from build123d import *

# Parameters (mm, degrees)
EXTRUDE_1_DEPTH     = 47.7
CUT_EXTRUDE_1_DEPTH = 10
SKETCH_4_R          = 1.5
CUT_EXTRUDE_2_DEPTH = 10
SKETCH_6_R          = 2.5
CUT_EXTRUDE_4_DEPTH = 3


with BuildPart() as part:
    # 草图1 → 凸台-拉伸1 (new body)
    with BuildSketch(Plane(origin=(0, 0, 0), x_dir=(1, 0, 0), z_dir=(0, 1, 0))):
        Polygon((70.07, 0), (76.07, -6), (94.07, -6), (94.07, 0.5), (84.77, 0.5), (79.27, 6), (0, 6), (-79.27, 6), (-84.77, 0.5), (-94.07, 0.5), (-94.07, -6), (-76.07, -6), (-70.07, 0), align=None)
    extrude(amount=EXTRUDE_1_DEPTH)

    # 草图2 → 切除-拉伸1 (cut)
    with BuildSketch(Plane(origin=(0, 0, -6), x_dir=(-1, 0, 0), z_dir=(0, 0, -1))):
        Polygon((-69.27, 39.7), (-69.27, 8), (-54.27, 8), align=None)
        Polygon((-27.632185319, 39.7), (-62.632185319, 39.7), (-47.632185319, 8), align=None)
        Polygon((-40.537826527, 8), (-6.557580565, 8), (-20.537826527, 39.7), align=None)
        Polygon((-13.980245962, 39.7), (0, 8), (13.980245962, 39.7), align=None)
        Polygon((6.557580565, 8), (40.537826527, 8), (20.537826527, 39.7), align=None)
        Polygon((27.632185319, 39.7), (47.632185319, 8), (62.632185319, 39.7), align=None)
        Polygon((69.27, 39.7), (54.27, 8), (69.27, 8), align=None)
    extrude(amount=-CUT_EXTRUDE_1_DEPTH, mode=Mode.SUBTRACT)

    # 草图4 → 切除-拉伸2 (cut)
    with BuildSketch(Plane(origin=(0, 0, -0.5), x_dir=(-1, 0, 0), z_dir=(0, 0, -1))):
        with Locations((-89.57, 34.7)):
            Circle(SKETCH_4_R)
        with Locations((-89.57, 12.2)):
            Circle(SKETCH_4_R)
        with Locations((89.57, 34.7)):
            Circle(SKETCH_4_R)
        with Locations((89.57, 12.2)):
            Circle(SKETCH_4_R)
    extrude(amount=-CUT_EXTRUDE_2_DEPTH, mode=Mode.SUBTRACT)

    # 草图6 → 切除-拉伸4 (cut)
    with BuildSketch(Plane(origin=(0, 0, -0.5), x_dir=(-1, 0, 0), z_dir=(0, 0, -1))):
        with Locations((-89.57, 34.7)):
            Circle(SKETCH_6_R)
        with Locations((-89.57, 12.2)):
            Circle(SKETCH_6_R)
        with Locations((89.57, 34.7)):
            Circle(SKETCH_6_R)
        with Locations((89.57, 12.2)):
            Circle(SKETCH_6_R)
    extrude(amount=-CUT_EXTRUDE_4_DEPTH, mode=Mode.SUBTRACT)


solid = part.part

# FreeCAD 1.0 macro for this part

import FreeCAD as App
import Part
import Sketcher

doc = App.newDocument("Part")
params = doc.addObject("Spreadsheet::Sheet", "Params")
for row, (alias, value) in enumerate([
    ("sketch1_width", "18 mm"),
    ("sketch1_width2", "9.3 mm"),
    ("sketch1_height", "6.5 mm"),
    ("sketch1_width3", "158.54 mm"),
    ("pad1_length", "47.7 mm"),
    ("sketch2_width", "15 mm"),
    ("sketch2_width2", "35 mm"),
    ("sketch2_height", "31.7 mm"),
    ("pocket1_length", "10 mm"),
    ("sketch3_diameter", "3 mm"),
    ("pocket2_length", "10 mm"),
    ("sketch4_diameter", "5 mm"),
    ("pocket3_length", "3 mm"),
], start=1):
    params.set(f"A{row}", alias)
    params.set(f"B{row}", "=" + value)
    params.setAlias(f"B{row}", alias)

body = doc.addObject("PartDesign::Body", "Body")

sketch1 = body.newObject("Sketcher::SketchObject", "Sketch")
sketch1.AttachmentSupport = (doc.getObject("XZ_Plane"), [""])
sketch1.MapMode = "FlatFace"
sketch1.addGeometry(Part.LineSegment(App.Vector(70, 0, 0), App.Vector(76, 6, 0)), False)
sketch1.addGeometry(Part.LineSegment(App.Vector(76, 6, 0), App.Vector(94, 6, 0)), False)
sketch1.addGeometry(Part.LineSegment(App.Vector(94, 6, 0), App.Vector(94, 0, 0)), False)
sketch1.addGeometry(Part.LineSegment(App.Vector(94, 0, 0), App.Vector(85, 0, 0)), False)
sketch1.addGeometry(Part.LineSegment(App.Vector(85, 0, 0), App.Vector(79, -6, 0)), False)
sketch1.addGeometry(Part.LineSegment(App.Vector(79, -6, 0), App.Vector(-79, -6, 0)), False)
sketch1.addGeometry(Part.LineSegment(App.Vector(-79, -6, 0), App.Vector(-85, 0, 0)), False)
sketch1.addGeometry(Part.LineSegment(App.Vector(-85, 0, 0), App.Vector(-94, 0, 0)), False)
sketch1.addGeometry(Part.LineSegment(App.Vector(-94, 0, 0), App.Vector(-94, 6, 0)), False)
sketch1.addGeometry(Part.LineSegment(App.Vector(-94, 6, 0), App.Vector(-76, 6, 0)), False)
sketch1.addGeometry(Part.LineSegment(App.Vector(-76, 6, 0), App.Vector(-70, 0, 0)), False)
sketch1.addGeometry(Part.LineSegment(App.Vector(-70, 0, 0), App.Vector(70, 0, 0)), False)
sketch1.addConstraint(Sketcher.Constraint("Coincident", 0, 2, 1, 1))
sketch1.addConstraint(Sketcher.Constraint("Coincident", 1, 2, 2, 1))
sketch1.addConstraint(Sketcher.Constraint("Coincident", 2, 2, 3, 1))
sketch1.addConstraint(Sketcher.Constraint("Coincident", 3, 2, 4, 1))
sketch1.addConstraint(Sketcher.Constraint("Coincident", 4, 2, 5, 1))
sketch1.addConstraint(Sketcher.Constraint("Coincident", 5, 2, 6, 1))
sketch1.addConstraint(Sketcher.Constraint("Coincident", 6, 2, 7, 1))
sketch1.addConstraint(Sketcher.Constraint("Coincident", 7, 2, 8, 1))
sketch1.addConstraint(Sketcher.Constraint("Coincident", 8, 2, 9, 1))
sketch1.addConstraint(Sketcher.Constraint("Coincident", 9, 2, 10, 1))
sketch1.addConstraint(Sketcher.Constraint("Coincident", 10, 2, 11, 1))
sketch1.addConstraint(Sketcher.Constraint("Coincident", 11, 2, 0, 1))
sketch1.addConstraint(Sketcher.Constraint("Horizontal", 1))
sketch1.addConstraint(Sketcher.Constraint("Vertical", 2))
sketch1.addConstraint(Sketcher.Constraint("Horizontal", 3))
sketch1.addConstraint(Sketcher.Constraint("Horizontal", 5))
sketch1.addConstraint(Sketcher.Constraint("Horizontal", 7))
sketch1.addConstraint(Sketcher.Constraint("Vertical", 8))
sketch1.addConstraint(Sketcher.Constraint("Horizontal", 9))
sketch1.addConstraint(Sketcher.Constraint("Horizontal", 11))
sketch1.addConstraint(Sketcher.Constraint("Symmetric", 10, 2, 11, 2, -1, 1))
sketch1.addConstraint(Sketcher.Constraint("Symmetric", 3, 2, 6, 2, -2))
sketch1.addConstraint(Sketcher.Constraint("Symmetric", 1, 2, 8, 2, -2))
sketch1.addConstraint(Sketcher.Constraint("Parallel", 0, 4))
sketch1.addConstraint(Sketcher.Constraint("Perpendicular", 4, 6))
sketch1.addConstraint(Sketcher.Constraint("Parallel", 6, 10))
sketch1.addConstraint(Sketcher.Constraint("Equal", 1, 9))
sketch1.addConstraint(Sketcher.Constraint("DistanceX", 1, 1, 1, 2, 18.0))
sketch1.addConstraint(Sketcher.Constraint("DistanceX", 3, 2, 3, 1, 9.3))
sketch1.addConstraint(Sketcher.Constraint("DistanceY", 2, 2, 2, 1, 6.5))
sketch1.addConstraint(Sketcher.Constraint("DistanceY", -1, 1, 0, 2, 6.0))
sketch1.addConstraint(Sketcher.Constraint("DistanceY", 4, 2, -1, 1, 6.0))
sketch1.addConstraint(Sketcher.Constraint("DistanceX", 5, 2, 5, 1, 158.54))
sketch1.setExpression("Constraints[27]", "Params.sketch1_width")
sketch1.setExpression("Constraints[28]", "Params.sketch1_width2")
sketch1.setExpression("Constraints[29]", "Params.sketch1_height")
sketch1.setExpression("Constraints[32]", "Params.sketch1_width3")
pad1 = body.newObject("PartDesign::Pad", "Pad")
pad1.Profile = sketch1
pad1.setExpression("Length", "Params.pad1_length")
pad1.Reversed = True

sketch2 = body.newObject("Sketcher::SketchObject", "Sketch001")
sketch2.AttachmentSupport = (doc.getObject("XY_Plane"), [""])
sketch2.MapMode = "FlatFace"
sketch2.AttachmentOffset = App.Placement(App.Vector(0, 0, -6), App.Rotation())
sketch2.addGeometry(Part.LineSegment(App.Vector(69, 40, 0), App.Vector(69, 8, 0)), False)
sketch2.addGeometry(Part.LineSegment(App.Vector(69, 8, 0), App.Vector(54, 8, 0)), False)
sketch2.addGeometry(Part.LineSegment(App.Vector(54, 8, 0), App.Vector(69, 40, 0)), False)
sketch2.addGeometry(Part.LineSegment(App.Vector(28, 40, 0), App.Vector(63, 40, 0)), False)
sketch2.addGeometry(Part.LineSegment(App.Vector(63, 40, 0), App.Vector(48, 8, 0)), False)
sketch2.addGeometry(Part.LineSegment(App.Vector(48, 8, 0), App.Vector(28, 40, 0)), False)
sketch2.addGeometry(Part.LineSegment(App.Vector(41, 8, 0), App.Vector(7, 8, 0)), False)
sketch2.addGeometry(Part.LineSegment(App.Vector(7, 8, 0), App.Vector(21, 40, 0)), False)
sketch2.addGeometry(Part.LineSegment(App.Vector(21, 40, 0), App.Vector(41, 8, 0)), False)
sketch2.addGeometry(Part.LineSegment(App.Vector(14, 40, 0), App.Vector(0, 8, 0)), False)
sketch2.addGeometry(Part.LineSegment(App.Vector(0, 8, 0), App.Vector(-14, 40, 0)), False)
sketch2.addGeometry(Part.LineSegment(App.Vector(-14, 40, 0), App.Vector(14, 40, 0)), False)
sketch2.addGeometry(Part.LineSegment(App.Vector(-7, 8, 0), App.Vector(-41, 8, 0)), False)
sketch2.addGeometry(Part.LineSegment(App.Vector(-41, 8, 0), App.Vector(-21, 40, 0)), False)
sketch2.addGeometry(Part.LineSegment(App.Vector(-21, 40, 0), App.Vector(-7, 8, 0)), False)
sketch2.addGeometry(Part.LineSegment(App.Vector(-28, 40, 0), App.Vector(-48, 8, 0)), False)
sketch2.addGeometry(Part.LineSegment(App.Vector(-48, 8, 0), App.Vector(-63, 40, 0)), False)
sketch2.addGeometry(Part.LineSegment(App.Vector(-63, 40, 0), App.Vector(-28, 40, 0)), False)
sketch2.addGeometry(Part.LineSegment(App.Vector(-69, 40, 0), App.Vector(-54, 8, 0)), False)
sketch2.addGeometry(Part.LineSegment(App.Vector(-54, 8, 0), App.Vector(-69, 8, 0)), False)
sketch2.addGeometry(Part.LineSegment(App.Vector(-69, 8, 0), App.Vector(-69, 40, 0)), False)
sketch2.addConstraint(Sketcher.Constraint("Coincident", 0, 2, 1, 1))
sketch2.addConstraint(Sketcher.Constraint("Coincident", 1, 2, 2, 1))
sketch2.addConstraint(Sketcher.Constraint("Coincident", 2, 2, 0, 1))
sketch2.addConstraint(Sketcher.Constraint("Coincident", 3, 2, 4, 1))
sketch2.addConstraint(Sketcher.Constraint("Coincident", 4, 2, 5, 1))
sketch2.addConstraint(Sketcher.Constraint("Coincident", 5, 2, 3, 1))
sketch2.addConstraint(Sketcher.Constraint("Coincident", 6, 2, 7, 1))
sketch2.addConstraint(Sketcher.Constraint("Coincident", 7, 2, 8, 1))
sketch2.addConstraint(Sketcher.Constraint("Coincident", 8, 2, 6, 1))
sketch2.addConstraint(Sketcher.Constraint("Coincident", 9, 2, 10, 1))
sketch2.addConstraint(Sketcher.Constraint("Coincident", 10, 2, 11, 1))
sketch2.addConstraint(Sketcher.Constraint("Coincident", 11, 2, 9, 1))
sketch2.addConstraint(Sketcher.Constraint("Coincident", 12, 2, 13, 1))
sketch2.addConstraint(Sketcher.Constraint("Coincident", 13, 2, 14, 1))
sketch2.addConstraint(Sketcher.Constraint("Coincident", 14, 2, 12, 1))
sketch2.addConstraint(Sketcher.Constraint("Coincident", 15, 2, 16, 1))
sketch2.addConstraint(Sketcher.Constraint("Coincident", 16, 2, 17, 1))
sketch2.addConstraint(Sketcher.Constraint("Coincident", 17, 2, 15, 1))
sketch2.addConstraint(Sketcher.Constraint("Coincident", 18, 2, 19, 1))
sketch2.addConstraint(Sketcher.Constraint("Coincident", 19, 2, 20, 1))
sketch2.addConstraint(Sketcher.Constraint("Coincident", 20, 2, 18, 1))
sketch2.addConstraint(Sketcher.Constraint("Vertical", 0))
sketch2.addConstraint(Sketcher.Constraint("Horizontal", 1))
sketch2.addConstraint(Sketcher.Constraint("Horizontal", 3))
sketch2.addConstraint(Sketcher.Constraint("Horizontal", 6))
sketch2.addConstraint(Sketcher.Constraint("Horizontal", 11))
sketch2.addConstraint(Sketcher.Constraint("Horizontal", 12))
sketch2.addConstraint(Sketcher.Constraint("Horizontal", 17))
sketch2.addConstraint(Sketcher.Constraint("Horizontal", 19))
sketch2.addConstraint(Sketcher.Constraint("Vertical", 20))
sketch2.addConstraint(Sketcher.Constraint("Symmetric", 8, 2, 12, 2, -2))
sketch2.addConstraint(Sketcher.Constraint("Symmetric", 7, 2, 13, 2, -2))
sketch2.addConstraint(Sketcher.Constraint("Symmetric", 4, 2, 15, 2, -2))
sketch2.addConstraint(Sketcher.Constraint("Symmetric", 3, 2, 16, 2, -2))
sketch2.addConstraint(Sketcher.Constraint("Symmetric", 1, 2, 18, 2, -2))
sketch2.addConstraint(Sketcher.Constraint("Symmetric", 2, 2, 20, 2, -2))
sketch2.addConstraint(Sketcher.Constraint("PointOnObject", 9, 2, -2))
sketch2.addConstraint(Sketcher.Constraint("Parallel", 2, 4))
sketch2.addConstraint(Sketcher.Constraint("Parallel", 5, 8))
sketch2.addConstraint(Sketcher.Constraint("Parallel", 7, 9))
sketch2.addConstraint(Sketcher.Constraint("Parallel", 10, 14))
sketch2.addConstraint(Sketcher.Constraint("Parallel", 13, 15))
sketch2.addConstraint(Sketcher.Constraint("Horizontal", 2, 2, 3, 2))
sketch2.addConstraint(Sketcher.Constraint("Horizontal", 1, 2, 4, 2))
sketch2.addConstraint(Sketcher.Constraint("Horizontal", 4, 2, 6, 2))
sketch2.addConstraint(Sketcher.Constraint("Horizontal", 5, 2, 7, 2))
sketch2.addConstraint(Sketcher.Constraint("Horizontal", 8, 2, 9, 2))
sketch2.addConstraint(Sketcher.Constraint("Horizontal", 7, 2, 10, 2))
sketch2.addConstraint(Sketcher.Constraint("Equal", 6, 12))
sketch2.addConstraint(Sketcher.Constraint("DistanceX", 1, 2, 1, 1, 15.0))
sketch2.addConstraint(Sketcher.Constraint("DistanceX", 3, 1, 3, 2, 35.0))
sketch2.addConstraint(Sketcher.Constraint("DistanceY", 0, 2, 0, 1, 31.7))
sketch2.addConstraint(Sketcher.Constraint("DistanceY", -1, 1, 0, 2, 8.0))
sketch2.addConstraint(Sketcher.Constraint("DistanceX", -1, 1, 0, 2, 69.27))
sketch2.addConstraint(Sketcher.Constraint("DistanceX", 11, 1, 11, 2, 27.960492))
sketch2.addConstraint(Sketcher.Constraint("DistanceX", -1, 1, 6, 2, 6.557581))
sketch2.addConstraint(Sketcher.Constraint("DistanceX", 7, 2, 5, 2, 7.094359))
sketch2.setExpression("Constraints[49]", "Params.sketch2_width")
sketch2.setExpression("Constraints[50]", "Params.sketch2_width2")
sketch2.setExpression("Constraints[51]", "Params.sketch2_height")
pocket1 = body.newObject("PartDesign::Pocket", "Pocket")
pocket1.Profile = sketch2
pocket1.setExpression("Length", "Params.pocket1_length")
pocket1.Reversed = True

sketch3 = body.newObject("Sketcher::SketchObject", "Sketch002")
sketch3.AttachmentSupport = (doc.getObject("XY_Plane"), [""])
sketch3.MapMode = "FlatFace"
sketch3.AttachmentOffset = App.Placement(App.Vector(0, 0, -0.5), App.Rotation())
sketch3.addGeometry(Part.Circle(App.Vector(89.6, 34.7, 0), App.Vector(0, 0, 1), 1.5), False)
sketch3.addGeometry(Part.Circle(App.Vector(89.6, 12.2, 0), App.Vector(0, 0, 1), 1.5), False)
sketch3.addGeometry(Part.Circle(App.Vector(-89.6, 34.7, 0), App.Vector(0, 0, 1), 1.5), False)
sketch3.addGeometry(Part.Circle(App.Vector(-89.6, 12.2, 0), App.Vector(0, 0, 1), 1.5), False)
sketch3.addConstraint(Sketcher.Constraint("Equal", 0, 1))
sketch3.addConstraint(Sketcher.Constraint("Equal", 1, 2))
sketch3.addConstraint(Sketcher.Constraint("Equal", 2, 3))
sketch3.addConstraint(Sketcher.Constraint("Symmetric", 0, 3, 2, 3, -2))
sketch3.addConstraint(Sketcher.Constraint("Symmetric", 1, 3, 3, 3, -2))
sketch3.addConstraint(Sketcher.Constraint("Vertical", 0, 3, 1, 3))
sketch3.addConstraint(Sketcher.Constraint("Diameter", 0, 3.0))
sketch3.addConstraint(Sketcher.Constraint("DistanceY", -1, 1, 0, 3, 34.7))
sketch3.addConstraint(Sketcher.Constraint("DistanceY", -1, 1, 1, 3, 12.2))
sketch3.addConstraint(Sketcher.Constraint("DistanceX", -1, 1, 0, 3, 89.57))
sketch3.setExpression("Constraints[6]", "Params.sketch3_diameter")
pocket2 = body.newObject("PartDesign::Pocket", "Pocket001")
pocket2.Profile = sketch3
pocket2.setExpression("Length", "Params.pocket2_length")
pocket2.Reversed = True

sketch4 = body.newObject("Sketcher::SketchObject", "Sketch003")
sketch4.AttachmentSupport = (doc.getObject("XY_Plane"), [""])
sketch4.MapMode = "FlatFace"
sketch4.AttachmentOffset = App.Placement(App.Vector(0, 0, -0.5), App.Rotation())
sketch4.addGeometry(Part.Circle(App.Vector(89.6, 34.7, 0), App.Vector(0, 0, 1), 2.5), False)
sketch4.addGeometry(Part.Circle(App.Vector(89.6, 12.2, 0), App.Vector(0, 0, 1), 2.5), False)
sketch4.addGeometry(Part.Circle(App.Vector(-89.6, 34.7, 0), App.Vector(0, 0, 1), 2.5), False)
sketch4.addGeometry(Part.Circle(App.Vector(-89.6, 12.2, 0), App.Vector(0, 0, 1), 2.5), False)
sketch4.addConstraint(Sketcher.Constraint("Equal", 0, 1))
sketch4.addConstraint(Sketcher.Constraint("Equal", 1, 2))
sketch4.addConstraint(Sketcher.Constraint("Equal", 2, 3))
sketch4.addConstraint(Sketcher.Constraint("Symmetric", 0, 3, 2, 3, -2))
sketch4.addConstraint(Sketcher.Constraint("Symmetric", 1, 3, 3, 3, -2))
sketch4.addConstraint(Sketcher.Constraint("Vertical", 0, 3, 1, 3))
sketch4.addConstraint(Sketcher.Constraint("Diameter", 0, 5.0))
sketch4.addConstraint(Sketcher.Constraint("DistanceY", -1, 1, 0, 3, 34.7))
sketch4.addConstraint(Sketcher.Constraint("DistanceY", -1, 1, 1, 3, 12.2))
sketch4.addConstraint(Sketcher.Constraint("DistanceX", -1, 1, 0, 3, 89.57))
sketch4.setExpression("Constraints[6]", "Params.sketch4_diameter")
pocket3 = body.newObject("PartDesign::Pocket", "Pocket002")
pocket3.Profile = sketch4
pocket3.setExpression("Length", "Params.pocket3_length")
pocket3.Reversed = True

doc.recompute()
